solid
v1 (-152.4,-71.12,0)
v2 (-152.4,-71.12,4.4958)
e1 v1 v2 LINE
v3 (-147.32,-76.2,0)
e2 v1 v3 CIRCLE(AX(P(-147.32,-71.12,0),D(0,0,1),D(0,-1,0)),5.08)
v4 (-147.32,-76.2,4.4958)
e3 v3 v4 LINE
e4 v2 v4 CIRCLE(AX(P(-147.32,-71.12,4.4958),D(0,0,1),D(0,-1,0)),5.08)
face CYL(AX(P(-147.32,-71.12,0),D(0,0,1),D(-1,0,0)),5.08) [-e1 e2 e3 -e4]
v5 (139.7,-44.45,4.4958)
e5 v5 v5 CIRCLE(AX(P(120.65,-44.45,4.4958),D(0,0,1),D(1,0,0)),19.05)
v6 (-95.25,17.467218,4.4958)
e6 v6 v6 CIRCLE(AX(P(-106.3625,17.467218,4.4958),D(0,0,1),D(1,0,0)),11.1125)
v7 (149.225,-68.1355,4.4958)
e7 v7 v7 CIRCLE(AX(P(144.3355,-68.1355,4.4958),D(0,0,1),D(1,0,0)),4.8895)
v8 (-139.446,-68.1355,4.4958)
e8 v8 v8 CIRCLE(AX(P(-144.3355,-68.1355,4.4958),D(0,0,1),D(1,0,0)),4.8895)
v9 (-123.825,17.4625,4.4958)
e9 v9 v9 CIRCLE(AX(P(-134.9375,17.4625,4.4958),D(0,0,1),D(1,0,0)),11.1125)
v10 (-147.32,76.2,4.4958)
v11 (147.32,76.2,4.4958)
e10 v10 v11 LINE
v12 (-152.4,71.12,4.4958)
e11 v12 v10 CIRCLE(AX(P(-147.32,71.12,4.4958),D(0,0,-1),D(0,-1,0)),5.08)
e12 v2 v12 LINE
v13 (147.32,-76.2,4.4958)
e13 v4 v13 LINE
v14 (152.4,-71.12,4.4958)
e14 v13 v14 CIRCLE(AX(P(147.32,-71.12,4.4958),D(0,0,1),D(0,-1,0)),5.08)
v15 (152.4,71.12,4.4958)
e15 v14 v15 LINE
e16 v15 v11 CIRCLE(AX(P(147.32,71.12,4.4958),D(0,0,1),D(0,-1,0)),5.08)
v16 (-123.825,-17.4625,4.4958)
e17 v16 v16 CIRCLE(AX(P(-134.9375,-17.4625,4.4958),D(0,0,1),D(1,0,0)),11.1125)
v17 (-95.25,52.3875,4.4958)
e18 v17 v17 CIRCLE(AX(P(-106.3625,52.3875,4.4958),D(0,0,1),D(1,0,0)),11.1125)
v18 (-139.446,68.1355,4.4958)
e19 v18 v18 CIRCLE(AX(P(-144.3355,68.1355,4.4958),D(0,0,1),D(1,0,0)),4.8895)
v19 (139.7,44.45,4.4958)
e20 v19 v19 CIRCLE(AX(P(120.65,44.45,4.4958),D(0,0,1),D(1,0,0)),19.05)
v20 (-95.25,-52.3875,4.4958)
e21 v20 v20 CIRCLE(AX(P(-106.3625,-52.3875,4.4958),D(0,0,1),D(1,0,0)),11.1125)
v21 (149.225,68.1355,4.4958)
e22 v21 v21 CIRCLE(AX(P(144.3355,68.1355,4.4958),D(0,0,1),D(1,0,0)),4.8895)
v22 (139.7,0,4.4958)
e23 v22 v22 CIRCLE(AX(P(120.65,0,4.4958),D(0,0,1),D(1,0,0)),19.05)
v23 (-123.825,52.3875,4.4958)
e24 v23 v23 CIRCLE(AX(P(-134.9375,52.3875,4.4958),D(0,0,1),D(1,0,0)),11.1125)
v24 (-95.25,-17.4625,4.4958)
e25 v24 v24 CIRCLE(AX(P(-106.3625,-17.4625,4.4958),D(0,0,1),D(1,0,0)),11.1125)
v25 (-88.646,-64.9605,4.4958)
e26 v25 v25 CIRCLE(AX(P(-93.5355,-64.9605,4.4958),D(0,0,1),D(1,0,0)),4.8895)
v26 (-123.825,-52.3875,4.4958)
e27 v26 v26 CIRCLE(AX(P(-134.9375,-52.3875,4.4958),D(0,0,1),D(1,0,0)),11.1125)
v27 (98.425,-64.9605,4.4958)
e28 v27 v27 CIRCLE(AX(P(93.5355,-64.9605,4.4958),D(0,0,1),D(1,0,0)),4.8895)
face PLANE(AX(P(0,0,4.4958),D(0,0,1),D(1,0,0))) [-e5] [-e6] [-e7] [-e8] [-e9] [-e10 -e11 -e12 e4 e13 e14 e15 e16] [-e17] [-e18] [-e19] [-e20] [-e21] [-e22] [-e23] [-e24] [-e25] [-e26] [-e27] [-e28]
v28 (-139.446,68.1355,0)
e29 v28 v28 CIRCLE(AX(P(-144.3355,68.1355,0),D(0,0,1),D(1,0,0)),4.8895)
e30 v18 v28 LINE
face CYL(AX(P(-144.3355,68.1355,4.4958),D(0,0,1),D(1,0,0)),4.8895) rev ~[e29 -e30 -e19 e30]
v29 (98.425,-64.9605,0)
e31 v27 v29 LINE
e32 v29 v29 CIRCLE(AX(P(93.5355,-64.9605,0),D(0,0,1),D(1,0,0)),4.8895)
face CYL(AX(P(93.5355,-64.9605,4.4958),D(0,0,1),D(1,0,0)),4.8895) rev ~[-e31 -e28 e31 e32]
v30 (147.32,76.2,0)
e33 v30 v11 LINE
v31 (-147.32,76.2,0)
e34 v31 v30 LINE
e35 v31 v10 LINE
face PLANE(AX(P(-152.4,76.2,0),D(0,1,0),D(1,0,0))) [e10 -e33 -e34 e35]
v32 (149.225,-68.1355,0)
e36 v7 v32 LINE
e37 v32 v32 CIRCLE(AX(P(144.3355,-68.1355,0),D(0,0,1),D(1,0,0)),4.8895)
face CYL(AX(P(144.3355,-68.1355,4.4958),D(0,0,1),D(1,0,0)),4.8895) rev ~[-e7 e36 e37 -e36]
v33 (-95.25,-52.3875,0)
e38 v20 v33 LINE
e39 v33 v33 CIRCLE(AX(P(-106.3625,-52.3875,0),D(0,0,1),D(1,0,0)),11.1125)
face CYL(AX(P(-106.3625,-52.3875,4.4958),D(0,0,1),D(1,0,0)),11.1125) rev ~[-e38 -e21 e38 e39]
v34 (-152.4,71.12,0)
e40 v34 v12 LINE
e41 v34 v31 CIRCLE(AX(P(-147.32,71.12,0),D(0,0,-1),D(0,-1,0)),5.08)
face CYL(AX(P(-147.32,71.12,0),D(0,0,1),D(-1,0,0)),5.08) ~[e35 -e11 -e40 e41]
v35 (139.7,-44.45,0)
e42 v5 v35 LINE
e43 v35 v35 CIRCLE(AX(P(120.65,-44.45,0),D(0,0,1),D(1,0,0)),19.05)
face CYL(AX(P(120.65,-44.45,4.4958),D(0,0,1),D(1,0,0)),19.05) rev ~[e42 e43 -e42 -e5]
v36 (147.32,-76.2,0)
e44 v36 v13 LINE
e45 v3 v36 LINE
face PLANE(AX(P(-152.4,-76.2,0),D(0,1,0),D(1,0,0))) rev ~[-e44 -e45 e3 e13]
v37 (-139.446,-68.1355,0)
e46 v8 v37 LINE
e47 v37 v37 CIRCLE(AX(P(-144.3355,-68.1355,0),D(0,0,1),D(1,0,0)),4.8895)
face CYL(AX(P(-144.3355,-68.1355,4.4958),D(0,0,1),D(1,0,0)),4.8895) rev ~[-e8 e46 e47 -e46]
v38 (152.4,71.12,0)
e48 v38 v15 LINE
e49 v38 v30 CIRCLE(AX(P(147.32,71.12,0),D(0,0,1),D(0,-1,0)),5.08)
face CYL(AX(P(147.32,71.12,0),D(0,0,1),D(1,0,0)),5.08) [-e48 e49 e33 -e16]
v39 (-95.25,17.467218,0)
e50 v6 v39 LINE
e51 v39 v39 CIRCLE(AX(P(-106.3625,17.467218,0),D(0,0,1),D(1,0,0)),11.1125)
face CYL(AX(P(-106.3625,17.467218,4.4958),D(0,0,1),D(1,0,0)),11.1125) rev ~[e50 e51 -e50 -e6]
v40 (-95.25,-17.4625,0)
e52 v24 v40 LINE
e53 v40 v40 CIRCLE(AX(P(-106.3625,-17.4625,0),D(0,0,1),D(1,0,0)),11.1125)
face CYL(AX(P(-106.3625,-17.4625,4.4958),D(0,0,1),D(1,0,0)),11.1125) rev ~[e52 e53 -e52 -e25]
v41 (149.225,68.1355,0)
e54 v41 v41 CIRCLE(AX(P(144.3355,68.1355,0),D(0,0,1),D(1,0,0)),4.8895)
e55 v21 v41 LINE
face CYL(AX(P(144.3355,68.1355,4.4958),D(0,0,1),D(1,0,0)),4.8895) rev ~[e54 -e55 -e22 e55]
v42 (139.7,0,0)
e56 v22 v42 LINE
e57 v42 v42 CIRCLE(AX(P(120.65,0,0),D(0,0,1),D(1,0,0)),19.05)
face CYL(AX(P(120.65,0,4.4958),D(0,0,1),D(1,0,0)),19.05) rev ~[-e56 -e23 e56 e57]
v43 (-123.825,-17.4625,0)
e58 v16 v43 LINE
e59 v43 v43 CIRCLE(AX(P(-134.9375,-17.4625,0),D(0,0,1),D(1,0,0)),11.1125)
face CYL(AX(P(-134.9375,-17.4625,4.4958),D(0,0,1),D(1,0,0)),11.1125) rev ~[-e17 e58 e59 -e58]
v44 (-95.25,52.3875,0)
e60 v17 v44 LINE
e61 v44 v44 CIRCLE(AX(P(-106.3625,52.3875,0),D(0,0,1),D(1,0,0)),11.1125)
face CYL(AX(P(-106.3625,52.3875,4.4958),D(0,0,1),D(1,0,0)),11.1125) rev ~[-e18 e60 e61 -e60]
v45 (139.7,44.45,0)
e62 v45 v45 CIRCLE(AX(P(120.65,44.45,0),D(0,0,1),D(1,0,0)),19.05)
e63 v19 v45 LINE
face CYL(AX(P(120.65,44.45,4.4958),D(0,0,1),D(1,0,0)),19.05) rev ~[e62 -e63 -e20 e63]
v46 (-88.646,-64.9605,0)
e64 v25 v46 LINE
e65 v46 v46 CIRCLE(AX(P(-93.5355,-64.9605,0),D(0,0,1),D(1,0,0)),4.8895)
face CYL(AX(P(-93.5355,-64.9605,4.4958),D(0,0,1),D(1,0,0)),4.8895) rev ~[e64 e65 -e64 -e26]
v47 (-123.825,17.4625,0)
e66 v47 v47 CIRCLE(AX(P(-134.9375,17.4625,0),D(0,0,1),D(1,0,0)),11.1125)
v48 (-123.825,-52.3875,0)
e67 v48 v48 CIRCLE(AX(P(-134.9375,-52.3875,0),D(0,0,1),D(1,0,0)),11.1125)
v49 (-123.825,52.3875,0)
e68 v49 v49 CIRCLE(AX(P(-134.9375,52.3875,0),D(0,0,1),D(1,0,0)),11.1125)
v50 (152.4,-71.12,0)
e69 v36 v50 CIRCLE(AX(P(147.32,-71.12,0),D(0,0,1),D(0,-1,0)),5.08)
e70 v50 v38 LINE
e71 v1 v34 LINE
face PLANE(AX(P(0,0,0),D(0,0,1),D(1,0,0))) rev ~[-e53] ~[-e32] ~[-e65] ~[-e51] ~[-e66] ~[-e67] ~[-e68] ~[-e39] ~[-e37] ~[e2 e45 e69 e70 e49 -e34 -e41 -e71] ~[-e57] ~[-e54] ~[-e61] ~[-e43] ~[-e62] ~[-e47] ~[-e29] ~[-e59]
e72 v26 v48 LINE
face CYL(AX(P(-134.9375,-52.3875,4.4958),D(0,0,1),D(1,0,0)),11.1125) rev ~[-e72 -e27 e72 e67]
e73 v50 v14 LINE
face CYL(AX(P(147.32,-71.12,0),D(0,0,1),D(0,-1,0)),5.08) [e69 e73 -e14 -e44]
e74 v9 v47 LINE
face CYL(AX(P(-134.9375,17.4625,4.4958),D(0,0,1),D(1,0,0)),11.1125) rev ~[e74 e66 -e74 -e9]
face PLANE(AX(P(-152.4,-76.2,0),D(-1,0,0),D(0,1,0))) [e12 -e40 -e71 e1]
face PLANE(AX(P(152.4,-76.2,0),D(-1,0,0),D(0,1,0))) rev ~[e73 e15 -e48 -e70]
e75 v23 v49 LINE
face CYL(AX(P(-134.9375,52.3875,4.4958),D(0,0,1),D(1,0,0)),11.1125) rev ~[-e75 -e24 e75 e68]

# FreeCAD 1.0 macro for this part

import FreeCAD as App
import Part
import Sketcher
from FreeCAD import Vector
Q = App.Units.Quantity


def edges_at(feature, points):
    """Names of the edges that pass closest to the given points."""
    edges = feature.Shape.Edges
    near = lambda p: min(range(len(edges)), key=lambda i: edges[i].distToShape(Part.Vertex(*p))[0])
    return sorted({f"Edge{near(p) + 1}" for p in points})

doc = App.newDocument("Part")
body = doc.addObject("PartDesign::Body", "Body")

# Sketch on XY plane
sketch1 = doc.addObject("Sketcher::SketchObject", "Sketch")
body.addObject(sketch1)
sketch1.AttachmentSupport = (doc.XY_Plane, [""])
sketch1.MapMode = "FlatFace"
sketch1.addGeometry([
    Part.LineSegment(Vector(-152, 76, 0), Vector(-152, -76, 0)),
    Part.LineSegment(Vector(-152, -76, 0), Vector(152, -76, 0)),
    Part.LineSegment(Vector(152, -76, 0), Vector(152, 76, 0)),
    Part.LineSegment(Vector(152, 76, 0), Vector(-152, 76, 0)),
], False)
sketch1.addConstraint([
    Sketcher.Constraint("Coincident", 0, 2, 1, 1),
    Sketcher.Constraint("Coincident", 1, 2, 2, 1),
    Sketcher.Constraint("Coincident", 2, 2, 3, 1),
    Sketcher.Constraint("Coincident", 3, 2, 0, 1),
    Sketcher.Constraint("Vertical", 0),
    Sketcher.Constraint("Horizontal", 1),
    Sketcher.Constraint("Vertical", 2),
    Sketcher.Constraint("Horizontal", 3),
    Sketcher.Constraint("Symmetric", 0, 2, 2, 2, -1, 1),
    Sketcher.Constraint("DistanceX", 1, 1, 1, 2, Q("12 in")),
    Sketcher.Constraint("DistanceY", 0, 2, 0, 1, Q("6 in")),
])
pad1 = doc.addObject("PartDesign::Pad", "Pad")
body.addObject(pad1)
pad1.Profile = sketch1
pad1.Length = Q("0.177 in")
doc.recompute()

fillet = doc.addObject("PartDesign::Fillet", "Fillet")
body.addObject(fillet)
fillet.Base = (pad1, edges_at(pad1, [
    (-152.4, 76.2, 2.248),
    (-152.4, -76.2, 2.248),
    (152.4, -76.2, 2.248),
    (152.4, 76.2, 2.248),
]))
fillet.Radius = Q("0.2 in")

# Sketch on XY plane
sketch2 = doc.addObject("Sketcher::SketchObject", "Sketch001")
body.addObject(sketch2)
sketch2.AttachmentSupport = (doc.XY_Plane, [""])
sketch2.MapMode = "FlatFace"
sketch2.AttachmentOffset = App.Placement(Vector(0, 0, 0.177 * 25.4), App.Rotation())
sketch2.addGeometry([
    Part.Circle(Vector(-144.3, 68.1, 0), Vector(0, 0, 1), 4.9),
    Part.Circle(Vector(-144.3, -68.1, 0), Vector(0, 0, 1), 4.9),
    Part.Circle(Vector(144.3, -68.1, 0), Vector(0, 0, 1), 4.9),
    Part.Circle(Vector(144.3, 68.1, 0), Vector(0, 0, 1), 4.9),
], False)
sketch2.addConstraint([
    Sketcher.Constraint("Equal", 0, 1),
    Sketcher.Constraint("Equal", 1, 2),
    Sketcher.Constraint("Equal", 2, 3),
    Sketcher.Constraint("Symmetric", 0, 3, 2, 3, -1, 1),
    Sketcher.Constraint("Symmetric", 1, 3, 3, 3, -1, 1),
    Sketcher.Constraint("Symmetric", 1, 3, 2, 3, -2),
    Sketcher.Constraint("Diameter", 0, Q("0.385 in")),
    Sketcher.Constraint("DistanceY", 1, 3, 0, 3, Q("5.365 in")),
    Sketcher.Constraint("DistanceX", 1, 3, 2, 3, Q("11.365 in")),
])
pocket1 = doc.addObject("PartDesign::Pocket", "Pocket")
body.addObject(pocket1)
pocket1.Profile = sketch2
pocket1.Type = "ThroughAll"

# Sketch on XY plane
sketch3 = doc.addObject("Sketcher::SketchObject", "Sketch002")
body.addObject(sketch3)
sketch3.AttachmentSupport = (doc.XY_Plane, [""])
sketch3.MapMode = "FlatFace"
sketch3.AttachmentOffset = App.Placement(Vector(0, 0, 0.177 * 25.4), App.Rotation())
sketch3.addGeometry([
    Part.Circle(Vector(-106, 52, 0), Vector(0, 0, 1), 11),  # 0
    Part.Circle(Vector(-135, 52, 0), Vector(0, 0, 1), 11),  # 1
    Part.Circle(Vector(-135, 17, 0), Vector(0, 0, 1), 11),  # 2
    Part.Circle(Vector(-106, 17, 0), Vector(0, 0, 1), 11),  # 3
    Part.Circle(Vector(-135, -17, 0), Vector(0, 0, 1), 11),  # 4
    Part.Circle(Vector(-106, -17, 0), Vector(0, 0, 1), 11),  # 5
    Part.Circle(Vector(-135, -52, 0), Vector(0, 0, 1), 11),  # 6
    Part.Circle(Vector(-106, -52, 0), Vector(0, 0, 1), 11),  # 7
], False)
sketch3.addConstraint([
    Sketcher.Constraint("Equal", 0, 1),
    Sketcher.Constraint("Equal", 1, 2),
    Sketcher.Constraint("Equal", 2, 3),
    Sketcher.Constraint("Equal", 3, 4),
    Sketcher.Constraint("Equal", 4, 5),
    Sketcher.Constraint("Equal", 5, 6),
    Sketcher.Constraint("Equal", 6, 7),
    Sketcher.Constraint("Symmetric", 2, 3, 4, 3, -1),
    Sketcher.Constraint("Symmetric", 1, 3, 6, 3, -1),
    Sketcher.Constraint("Symmetric", 0, 3, 7, 3, -1),
    Sketcher.Constraint("Horizontal", 0, 3, 1, 3),
    Sketcher.Constraint("Horizontal", 4, 3, 5, 3),
    Sketcher.Constraint("Vertical", 1, 3, 2, 3),
    Sketcher.Constraint("Vertical", 0, 3, 3, 3),
    Sketcher.Constraint("Vertical", 3, 3, 5, 3),
    Sketcher.Constraint("Diameter", 0, Q("0.875 in")),
    Sketcher.Constraint("DistanceY", 4, 3, 1, 3, Q("2.75 in")),
    Sketcher.Constraint("DistanceX", 0, 3, -1, 1, Q("4.1875 in")),
    Sketcher.Constraint("DistanceY", -1, 1, 0, 3, Q("2.0625 in")),
    Sketcher.Constraint("DistanceX", 1, 3, -1, 1, Q("5.3125 in")),
    Sketcher.Constraint("DistanceY", 2, 3, 3, 3, Q("0.004718 mm")),
])
pocket2 = doc.addObject("PartDesign::Pocket", "Pocket001")
body.addObject(pocket2)
pocket2.Profile = sketch3
pocket2.Type = "ThroughAll"

# Sketch on XY plane
sketch4 = doc.addObject("Sketcher::SketchObject", "Sketch003")
body.addObject(sketch4)
sketch4.AttachmentSupport = (doc.XY_Plane, [""])
sketch4.MapMode = "FlatFace"
sketch4.AttachmentOffset = App.Placement(Vector(0, 0, 0.177 * 25.4), App.Rotation())
sketch4.addGeometry([
    Part.Circle(Vector(121, 44, 0), Vector(0, 0, 1), 19),
    Part.Circle(Vector(121, 0, 0), Vector(0, 0, 1), 19),
    Part.Circle(Vector(121, -44, 0), Vector(0, 0, 1), 19),
], False)
sketch4.addConstraint([
    Sketcher.Constraint("Equal", 0, 1),
    Sketcher.Constraint("Equal", 1, 2),
    Sketcher.Constraint("Symmetric", 0, 3, 2, 3, -1),
    Sketcher.Constraint("PointOnObject", 1, 3, -1),
    Sketcher.Constraint("Vertical", 0, 3, 1, 3),
    Sketcher.Constraint("Diameter", 0, Q("1.5 in")),
    Sketcher.Constraint("DistanceY", 2, 3, 0, 3, Q("3.5 in")),
    Sketcher.Constraint("DistanceX", -1, 1, 0, 3, Q("4.75 in")),
])
pocket3 = doc.addObject("PartDesign::Pocket", "Pocket002")
body.addObject(pocket3)
pocket3.Profile = sketch4
pocket3.Type = "ThroughAll"

# Sketch on XY plane
sketch5 = doc.addObject("Sketcher::SketchObject", "Sketch004")
body.addObject(sketch5)
sketch5.AttachmentSupport = (doc.XY_Plane, [""])
sketch5.MapMode = "FlatFace"
sketch5.AttachmentOffset = App.Placement(Vector(0, 0, 0.177 * 25.4), App.Rotation())
sketch5.addGeometry([
    Part.Circle(Vector(-93.5, -65, 0), Vector(0, 0, 1), 4.9),
    Part.Circle(Vector(93.5, -65, 0), Vector(0, 0, 1), 4.9),
], False)
sketch5.addConstraint([
    Sketcher.Constraint("Equal", 0, 1),
    Sketcher.Constraint("Symmetric", 0, 3, 1, 3, -2),
    Sketcher.Constraint("Diameter", 0, Q("0.385 in")),
    Sketcher.Constraint("DistanceX", 0, 3, 1, 3, Q("7.365 in")),
    Sketcher.Constraint("DistanceY", 0, 3, -1, 1, Q("2.5575 in")),
])
pocket4 = doc.addObject("PartDesign::Pocket", "Pocket003")
body.addObject(pocket4)
pocket4.Profile = sketch5
pocket4.Type = "ThroughAll"

doc.recompute()
